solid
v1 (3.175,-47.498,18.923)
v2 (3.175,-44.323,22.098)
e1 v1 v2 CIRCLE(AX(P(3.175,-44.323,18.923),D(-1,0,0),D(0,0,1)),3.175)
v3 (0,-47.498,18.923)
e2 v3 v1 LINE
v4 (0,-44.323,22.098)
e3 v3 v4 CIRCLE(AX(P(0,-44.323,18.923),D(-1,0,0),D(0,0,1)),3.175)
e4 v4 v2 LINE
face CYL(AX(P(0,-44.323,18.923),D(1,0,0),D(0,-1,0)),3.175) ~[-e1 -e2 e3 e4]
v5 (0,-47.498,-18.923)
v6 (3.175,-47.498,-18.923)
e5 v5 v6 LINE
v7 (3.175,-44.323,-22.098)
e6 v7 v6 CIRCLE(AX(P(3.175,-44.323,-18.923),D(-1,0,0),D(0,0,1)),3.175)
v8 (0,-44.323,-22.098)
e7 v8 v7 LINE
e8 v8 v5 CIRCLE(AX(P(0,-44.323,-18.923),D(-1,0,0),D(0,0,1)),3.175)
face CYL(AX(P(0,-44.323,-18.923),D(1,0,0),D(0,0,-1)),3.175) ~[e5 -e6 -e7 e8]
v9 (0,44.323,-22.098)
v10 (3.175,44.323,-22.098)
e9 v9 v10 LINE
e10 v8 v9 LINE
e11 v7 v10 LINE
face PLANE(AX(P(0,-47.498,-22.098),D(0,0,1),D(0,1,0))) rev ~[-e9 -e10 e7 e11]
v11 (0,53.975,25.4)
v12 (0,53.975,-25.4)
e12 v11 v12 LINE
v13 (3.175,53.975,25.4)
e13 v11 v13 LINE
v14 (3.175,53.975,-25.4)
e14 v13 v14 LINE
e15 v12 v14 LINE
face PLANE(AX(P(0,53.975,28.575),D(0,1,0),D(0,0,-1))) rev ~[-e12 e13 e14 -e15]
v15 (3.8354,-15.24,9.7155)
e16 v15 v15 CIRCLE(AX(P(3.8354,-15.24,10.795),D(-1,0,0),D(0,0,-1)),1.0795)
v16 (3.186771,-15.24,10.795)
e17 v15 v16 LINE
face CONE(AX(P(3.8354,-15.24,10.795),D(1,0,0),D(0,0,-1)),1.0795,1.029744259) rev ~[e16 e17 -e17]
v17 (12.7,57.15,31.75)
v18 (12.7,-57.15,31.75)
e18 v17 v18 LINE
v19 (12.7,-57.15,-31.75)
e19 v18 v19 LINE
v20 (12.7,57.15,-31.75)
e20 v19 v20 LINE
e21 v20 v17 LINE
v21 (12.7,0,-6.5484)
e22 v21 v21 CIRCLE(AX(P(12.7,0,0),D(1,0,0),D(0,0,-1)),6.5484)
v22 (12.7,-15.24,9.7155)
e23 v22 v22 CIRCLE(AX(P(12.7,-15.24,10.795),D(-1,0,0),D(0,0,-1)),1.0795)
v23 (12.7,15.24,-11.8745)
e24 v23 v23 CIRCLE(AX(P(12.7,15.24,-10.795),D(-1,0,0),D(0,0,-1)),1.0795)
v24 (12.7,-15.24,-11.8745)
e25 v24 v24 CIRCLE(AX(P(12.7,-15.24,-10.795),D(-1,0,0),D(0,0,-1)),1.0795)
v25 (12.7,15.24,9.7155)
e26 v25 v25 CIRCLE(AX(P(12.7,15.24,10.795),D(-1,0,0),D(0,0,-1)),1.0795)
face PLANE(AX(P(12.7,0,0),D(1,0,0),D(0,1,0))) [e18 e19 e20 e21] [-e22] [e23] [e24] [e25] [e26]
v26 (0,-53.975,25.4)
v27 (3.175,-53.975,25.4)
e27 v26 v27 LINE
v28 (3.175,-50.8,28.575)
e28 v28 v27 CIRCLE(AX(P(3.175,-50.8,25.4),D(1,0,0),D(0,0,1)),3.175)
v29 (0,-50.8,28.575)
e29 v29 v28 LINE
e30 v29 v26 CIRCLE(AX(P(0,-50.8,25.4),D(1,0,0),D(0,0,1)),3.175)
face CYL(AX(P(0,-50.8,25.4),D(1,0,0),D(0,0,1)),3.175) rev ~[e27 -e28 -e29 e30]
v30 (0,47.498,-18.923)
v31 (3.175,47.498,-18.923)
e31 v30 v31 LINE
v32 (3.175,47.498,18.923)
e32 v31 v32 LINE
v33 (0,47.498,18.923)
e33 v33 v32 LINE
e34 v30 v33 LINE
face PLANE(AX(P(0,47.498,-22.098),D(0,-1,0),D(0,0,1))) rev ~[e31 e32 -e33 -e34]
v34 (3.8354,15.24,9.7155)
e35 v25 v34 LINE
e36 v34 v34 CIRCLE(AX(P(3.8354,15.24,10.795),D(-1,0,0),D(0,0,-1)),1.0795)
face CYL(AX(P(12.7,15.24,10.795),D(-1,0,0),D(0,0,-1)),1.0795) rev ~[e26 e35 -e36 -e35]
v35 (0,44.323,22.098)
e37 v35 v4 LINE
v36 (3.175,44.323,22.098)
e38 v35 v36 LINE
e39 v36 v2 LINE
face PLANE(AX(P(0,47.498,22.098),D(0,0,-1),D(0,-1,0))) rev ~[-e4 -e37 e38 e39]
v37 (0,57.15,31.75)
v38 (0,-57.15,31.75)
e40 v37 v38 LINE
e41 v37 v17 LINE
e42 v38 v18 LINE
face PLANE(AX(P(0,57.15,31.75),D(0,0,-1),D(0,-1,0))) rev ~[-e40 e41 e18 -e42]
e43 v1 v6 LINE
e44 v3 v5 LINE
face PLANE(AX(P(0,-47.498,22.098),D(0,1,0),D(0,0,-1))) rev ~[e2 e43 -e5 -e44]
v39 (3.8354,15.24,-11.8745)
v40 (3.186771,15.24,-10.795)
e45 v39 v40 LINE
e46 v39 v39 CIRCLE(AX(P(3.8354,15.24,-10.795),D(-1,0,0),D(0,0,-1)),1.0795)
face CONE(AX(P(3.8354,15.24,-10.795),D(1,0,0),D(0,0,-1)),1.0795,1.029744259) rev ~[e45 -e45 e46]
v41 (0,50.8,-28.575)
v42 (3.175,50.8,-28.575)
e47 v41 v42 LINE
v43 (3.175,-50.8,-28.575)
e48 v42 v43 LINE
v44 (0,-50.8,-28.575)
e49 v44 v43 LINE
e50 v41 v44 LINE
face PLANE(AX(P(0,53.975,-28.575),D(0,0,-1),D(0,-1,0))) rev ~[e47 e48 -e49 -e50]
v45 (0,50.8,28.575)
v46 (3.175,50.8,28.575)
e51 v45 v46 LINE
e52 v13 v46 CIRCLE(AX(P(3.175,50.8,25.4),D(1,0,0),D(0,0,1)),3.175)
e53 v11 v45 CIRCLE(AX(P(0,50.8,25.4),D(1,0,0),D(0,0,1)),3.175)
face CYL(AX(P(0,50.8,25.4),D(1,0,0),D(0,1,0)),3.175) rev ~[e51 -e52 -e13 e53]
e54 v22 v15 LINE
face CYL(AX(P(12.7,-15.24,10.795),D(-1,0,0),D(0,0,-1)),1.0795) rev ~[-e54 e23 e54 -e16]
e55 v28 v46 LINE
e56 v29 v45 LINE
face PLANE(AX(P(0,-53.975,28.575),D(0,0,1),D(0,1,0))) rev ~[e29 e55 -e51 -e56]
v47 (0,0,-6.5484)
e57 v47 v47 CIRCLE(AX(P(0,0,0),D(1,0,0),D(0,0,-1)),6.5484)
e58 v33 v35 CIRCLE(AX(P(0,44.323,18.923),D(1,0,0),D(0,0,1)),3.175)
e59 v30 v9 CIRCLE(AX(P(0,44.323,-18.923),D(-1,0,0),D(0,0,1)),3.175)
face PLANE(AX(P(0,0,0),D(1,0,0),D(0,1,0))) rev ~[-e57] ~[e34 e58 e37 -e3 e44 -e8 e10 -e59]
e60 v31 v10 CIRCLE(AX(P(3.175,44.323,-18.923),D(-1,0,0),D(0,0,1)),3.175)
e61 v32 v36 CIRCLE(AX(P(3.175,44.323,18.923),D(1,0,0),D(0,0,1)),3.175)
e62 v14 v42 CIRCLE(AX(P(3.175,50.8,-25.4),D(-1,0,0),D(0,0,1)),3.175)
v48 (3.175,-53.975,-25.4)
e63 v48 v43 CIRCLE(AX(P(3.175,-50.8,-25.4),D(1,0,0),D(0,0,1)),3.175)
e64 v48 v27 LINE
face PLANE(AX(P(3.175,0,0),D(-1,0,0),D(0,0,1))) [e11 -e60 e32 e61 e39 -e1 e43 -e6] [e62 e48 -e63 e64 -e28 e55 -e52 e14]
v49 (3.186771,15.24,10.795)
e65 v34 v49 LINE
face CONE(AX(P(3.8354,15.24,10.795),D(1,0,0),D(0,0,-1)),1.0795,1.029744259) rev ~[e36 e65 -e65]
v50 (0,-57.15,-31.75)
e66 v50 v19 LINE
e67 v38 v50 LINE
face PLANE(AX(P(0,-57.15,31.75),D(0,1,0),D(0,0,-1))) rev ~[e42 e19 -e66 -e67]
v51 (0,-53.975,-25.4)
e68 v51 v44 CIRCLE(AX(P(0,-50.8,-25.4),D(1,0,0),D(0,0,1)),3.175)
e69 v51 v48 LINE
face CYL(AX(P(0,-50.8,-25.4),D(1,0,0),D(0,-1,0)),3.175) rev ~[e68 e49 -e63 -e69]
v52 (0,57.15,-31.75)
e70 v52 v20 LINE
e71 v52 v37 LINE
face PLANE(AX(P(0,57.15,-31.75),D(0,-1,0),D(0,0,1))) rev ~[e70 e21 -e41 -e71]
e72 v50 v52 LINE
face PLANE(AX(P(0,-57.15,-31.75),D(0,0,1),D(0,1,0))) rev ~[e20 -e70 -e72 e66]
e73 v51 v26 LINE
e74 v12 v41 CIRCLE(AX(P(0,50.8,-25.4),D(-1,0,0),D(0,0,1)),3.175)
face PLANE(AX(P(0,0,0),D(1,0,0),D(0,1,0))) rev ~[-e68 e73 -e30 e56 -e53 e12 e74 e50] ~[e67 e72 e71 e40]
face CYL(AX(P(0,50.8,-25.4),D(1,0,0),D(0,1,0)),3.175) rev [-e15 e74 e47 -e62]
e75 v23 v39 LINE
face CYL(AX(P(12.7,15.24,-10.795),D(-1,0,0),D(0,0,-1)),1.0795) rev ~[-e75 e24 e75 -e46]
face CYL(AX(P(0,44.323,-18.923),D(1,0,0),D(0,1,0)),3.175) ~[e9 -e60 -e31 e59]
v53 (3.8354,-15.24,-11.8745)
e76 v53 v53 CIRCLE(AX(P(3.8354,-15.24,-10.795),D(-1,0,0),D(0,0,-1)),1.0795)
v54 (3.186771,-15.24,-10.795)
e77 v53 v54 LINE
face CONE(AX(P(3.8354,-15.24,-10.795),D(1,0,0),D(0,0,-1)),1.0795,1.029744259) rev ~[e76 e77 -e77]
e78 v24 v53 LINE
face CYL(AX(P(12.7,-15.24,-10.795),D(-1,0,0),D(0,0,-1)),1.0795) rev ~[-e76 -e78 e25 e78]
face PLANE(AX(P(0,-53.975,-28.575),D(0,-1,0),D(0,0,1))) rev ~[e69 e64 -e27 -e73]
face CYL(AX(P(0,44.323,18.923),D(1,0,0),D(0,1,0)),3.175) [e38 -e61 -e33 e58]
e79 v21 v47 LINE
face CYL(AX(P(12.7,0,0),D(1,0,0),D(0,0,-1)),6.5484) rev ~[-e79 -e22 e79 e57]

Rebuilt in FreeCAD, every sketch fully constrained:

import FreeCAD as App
import Part
import Sketcher
Q = App.Units.Quantity


def edges_at(feature, points):
    """Names of the edges that pass closest to the given points."""
    edges = feature.Shape.Edges
    near = lambda p: min(range(len(edges)), key=lambda i: edges[i].distToShape(Part.Vertex(*p))[0])
    return sorted({f"Edge{near(p) + 1}" for p in points})

doc = App.newDocument("Part")
body = doc.addObject("PartDesign::Body", "Body")

sketch1 = doc.addObject("Sketcher::SketchObject", "Sketch")
body.addObject(sketch1)
sketch1.AttachmentSupport = (doc.YZ_Plane, [""])
sketch1.MapMode = "FlatFace"
sketch1.addGeometry([
    Part.LineSegment(App.Vector(57, -32, 0), App.Vector(57, 32, 0)),
    Part.LineSegment(App.Vector(57, 32, 0), App.Vector(-57, 32, 0)),
    Part.LineSegment(App.Vector(-57, 32, 0), App.Vector(-57, -32, 0)),
    Part.LineSegment(App.Vector(-57, -32, 0), App.Vector(57, -32, 0)),
], False)
sketch1.addConstraint([
    Sketcher.Constraint("Coincident", 0, 2, 1, 1),
    Sketcher.Constraint("Coincident", 1, 2, 2, 1),
    Sketcher.Constraint("Coincident", 2, 2, 3, 1),
    Sketcher.Constraint("Coincident", 3, 2, 0, 1),
    Sketcher.Constraint("Vertical", 0),
    Sketcher.Constraint("Horizontal", 1),
    Sketcher.Constraint("Vertical", 2),
    Sketcher.Constraint("Horizontal", 3),
    Sketcher.Constraint("Symmetric", 0, 2, 2, 2, -1, 1),
    Sketcher.Constraint("DistanceX", 1, 2, 1, 1, Q("4.5 in")),
    Sketcher.Constraint("DistanceY", 0, 1, 0, 2, Q("2.5 in")),
])
pad1 = doc.addObject("PartDesign::Pad", "Pad")
body.addObject(pad1)
pad1.Profile = sketch1
pad1.Length = Q("0.5 in")

sketch2 = doc.addObject("Sketcher::SketchObject", "Sketch001")
body.addObject(sketch2)
sketch2.AttachmentSupport = (doc.YZ_Plane, [""])
sketch2.MapMode = "FlatFace"
sketch2.addGeometry([
    Part.LineSegment(App.Vector(54, -29, 0), App.Vector(-54, -29, 0)),
    Part.LineSegment(App.Vector(-54, -29, 0), App.Vector(-54, 29, 0)),
    Part.LineSegment(App.Vector(-54, 29, 0), App.Vector(54, 29, 0)),
    Part.LineSegment(App.Vector(54, 29, 0), App.Vector(54, -29, 0)),
    Part.LineSegment(App.Vector(47, -22, 0), App.Vector(47, 22, 0)),
    Part.LineSegment(App.Vector(47, 22, 0), App.Vector(-47, 22, 0)),
    Part.LineSegment(App.Vector(-47, 22, 0), App.Vector(-47, -22, 0)),
    Part.LineSegment(App.Vector(-47, -22, 0), App.Vector(47, -22, 0)),
], False)
sketch2.addConstraint([
    Sketcher.Constraint("Coincident", 0, 2, 1, 1),
    Sketcher.Constraint("Coincident", 1, 2, 2, 1),
    Sketcher.Constraint("Coincident", 2, 2, 3, 1),
    Sketcher.Constraint("Coincident", 3, 2, 0, 1),
    Sketcher.Constraint("Coincident", 4, 2, 5, 1),
    Sketcher.Constraint("Coincident", 5, 2, 6, 1),
    Sketcher.Constraint("Coincident", 6, 2, 7, 1),
    Sketcher.Constraint("Coincident", 7, 2, 4, 1),
    Sketcher.Constraint("Horizontal", 0),
    Sketcher.Constraint("Vertical", 1),
    Sketcher.Constraint("Horizontal", 2),
    Sketcher.Constraint("Vertical", 3),
    Sketcher.Constraint("Vertical", 4),
    Sketcher.Constraint("Horizontal", 5),
    Sketcher.Constraint("Vertical", 6),
    Sketcher.Constraint("Horizontal", 7),
    Sketcher.Constraint("Symmetric", 0, 2, 2, 2, -1, 1),
    Sketcher.Constraint("Symmetric", 4, 2, 6, 2, -1, 1),
    Sketcher.Constraint("DistanceX", 0, 2, 0, 1, Q("4.25 in")),
    Sketcher.Constraint("DistanceY", 1, 1, 1, 2, Q("2.25 in")),
    Sketcher.Constraint("DistanceX", 4, 2, 2, 2, Q("0.255 in")),
    Sketcher.Constraint("DistanceY", 4, 2, 2, 2, Q("0.255 in")),
])
pocket1 = doc.addObject("PartDesign::Pocket", "Pocket")
body.addObject(pocket1)
pocket1.Profile = sketch2
pocket1.Length = Q("0.125 in")
pocket1.Reversed = True

sketch3 = doc.addObject("Sketcher::SketchObject", "Sketch002")
body.addObject(sketch3)
sketch3.AttachmentSupport = (doc.YZ_Plane, [""])
sketch3.MapMode = "FlatFace"
sketch3.AttachmentOffset = App.Placement(App.Vector(0, 0, 0.5 * 25.4), App.Rotation())
sketch3.addGeometry(Part.Circle(App.Vector(0, 0, 0), App.Vector(0, 0, 1), 7), False)
sketch3.addConstraint([
    Sketcher.Constraint("Coincident", 0, 3, -1, 1),
    Sketcher.Constraint("Diameter", 0, Q("0.515622 in")),
])
pocket2 = doc.addObject("PartDesign::Pocket", "Pocket001")
body.addObject(pocket2)
pocket2.Profile = sketch3
pocket2.Type = "ThroughAll"

sketch4 = doc.addObject("Sketcher::SketchObject", "Sketch003")
body.addObject(sketch4)
sketch4.AttachmentSupport = (doc.YZ_Plane, [""])
sketch4.MapMode = "FlatFace"
sketch4.AttachmentOffset = App.Placement(App.Vector(0, 0, 0.5 * 25.4), App.Rotation())
sketch4.addGeometry([
    Part.Circle(App.Vector(-15.2, 10.8, 0), App.Vector(0, 0, 1), 1.1),
    Part.Circle(App.Vector(15.2, 10.8, 0), App.Vector(0, 0, 1), 1.1),
    Part.Circle(App.Vector(15.2, -10.8, 0), App.Vector(0, 0, 1), 1.1),
    Part.Circle(App.Vector(-15.2, -10.8, 0), App.Vector(0, 0, 1), 1.1),
], False)
sketch4.addConstraint([
    Sketcher.Constraint("Equal", 0, 1),
    Sketcher.Constraint("Equal", 1, 2),
    Sketcher.Constraint("Equal", 2, 3),
    Sketcher.Constraint("Symmetric", 0, 3, 2, 3, -1, 1),
    Sketcher.Constraint("Symmetric", 1, 3, 3, 3, -1, 1),
    Sketcher.Constraint("Symmetric", 0, 3, 1, 3, -2),
    Sketcher.Constraint("Diameter", 0, Q("0.085 in")),
    Sketcher.Constraint("DistanceX", 0, 3, -1, 1, Q("0.6 in")),
    Sketcher.Constraint("DistanceY", 2, 3, 1, 3, Q("0.85 in")),
])
doc.recompute()
hole = doc.addObject("PartDesign::Hole", "Hole")
body.addObject(hole)
hole.Profile = sketch4
hole.ThreadType = "None"
hole.Diameter = Q("0.085 in")
hole.DepthType = "Dimension"
hole.Depth = Q("0.349 in")
hole.DrillPoint = "Angled"
hole.DrillPointAngle = 118
doc.recompute()

fillet = doc.addObject("PartDesign::Fillet", "Fillet")
body.addObject(fillet)
fillet.Base = (hole, edges_at(hole, [
    (1.587, 53.975, 28.575),
    (1.587, -47.498, 22.098),
    (1.587, -47.498, -22.098),
    (1.587, -53.975, -28.575),
    (1.587, 47.498, -22.098),
    (1.587, -53.975, 28.575),
    (1.587, 53.975, -28.575),
    (1.587, 47.498, 22.098),
]))
fillet.Radius = Q("0.125 in")

doc.recompute()
